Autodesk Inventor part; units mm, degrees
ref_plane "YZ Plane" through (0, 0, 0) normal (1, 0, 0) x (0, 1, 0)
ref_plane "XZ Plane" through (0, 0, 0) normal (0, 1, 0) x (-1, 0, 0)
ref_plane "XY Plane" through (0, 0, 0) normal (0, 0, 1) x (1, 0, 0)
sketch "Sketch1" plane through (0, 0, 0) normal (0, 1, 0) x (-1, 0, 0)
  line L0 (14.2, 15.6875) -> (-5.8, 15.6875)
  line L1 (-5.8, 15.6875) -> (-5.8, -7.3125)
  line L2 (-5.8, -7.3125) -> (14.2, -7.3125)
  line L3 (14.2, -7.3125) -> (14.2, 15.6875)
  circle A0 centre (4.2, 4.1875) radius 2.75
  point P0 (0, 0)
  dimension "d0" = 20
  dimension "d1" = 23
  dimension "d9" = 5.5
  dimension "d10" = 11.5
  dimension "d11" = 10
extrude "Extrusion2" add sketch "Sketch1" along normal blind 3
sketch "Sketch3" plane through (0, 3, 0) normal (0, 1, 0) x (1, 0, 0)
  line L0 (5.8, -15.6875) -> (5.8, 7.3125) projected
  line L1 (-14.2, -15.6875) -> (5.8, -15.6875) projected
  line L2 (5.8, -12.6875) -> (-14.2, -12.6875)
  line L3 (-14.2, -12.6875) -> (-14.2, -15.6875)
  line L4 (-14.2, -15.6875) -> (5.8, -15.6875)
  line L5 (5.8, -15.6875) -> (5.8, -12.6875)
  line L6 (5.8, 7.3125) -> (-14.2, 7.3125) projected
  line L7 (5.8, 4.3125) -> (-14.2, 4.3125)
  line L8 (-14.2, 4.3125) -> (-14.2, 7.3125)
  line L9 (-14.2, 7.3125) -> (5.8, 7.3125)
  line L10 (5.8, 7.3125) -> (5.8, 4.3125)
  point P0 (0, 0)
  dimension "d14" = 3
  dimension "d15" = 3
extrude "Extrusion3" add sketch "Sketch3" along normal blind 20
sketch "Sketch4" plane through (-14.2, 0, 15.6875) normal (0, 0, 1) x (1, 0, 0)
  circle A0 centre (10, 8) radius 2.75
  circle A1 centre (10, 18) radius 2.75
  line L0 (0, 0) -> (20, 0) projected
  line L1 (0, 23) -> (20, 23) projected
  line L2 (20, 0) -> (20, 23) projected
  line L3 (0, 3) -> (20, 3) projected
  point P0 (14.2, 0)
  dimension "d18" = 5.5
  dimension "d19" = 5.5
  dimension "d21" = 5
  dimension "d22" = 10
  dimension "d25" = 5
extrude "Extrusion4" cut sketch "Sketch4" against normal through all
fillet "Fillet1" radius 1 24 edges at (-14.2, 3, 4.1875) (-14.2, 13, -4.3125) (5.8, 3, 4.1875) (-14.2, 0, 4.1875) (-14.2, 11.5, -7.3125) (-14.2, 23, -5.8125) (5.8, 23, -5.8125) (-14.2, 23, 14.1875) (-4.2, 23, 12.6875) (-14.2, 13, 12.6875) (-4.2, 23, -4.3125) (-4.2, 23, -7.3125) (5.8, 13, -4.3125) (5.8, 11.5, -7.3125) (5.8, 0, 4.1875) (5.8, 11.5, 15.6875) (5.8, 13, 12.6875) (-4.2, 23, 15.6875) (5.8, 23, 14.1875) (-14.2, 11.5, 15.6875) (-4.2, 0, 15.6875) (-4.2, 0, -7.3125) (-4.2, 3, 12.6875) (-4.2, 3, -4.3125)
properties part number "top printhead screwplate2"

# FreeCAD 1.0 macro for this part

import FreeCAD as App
import Part
import Sketcher

V = App.Vector


def edges_at(feature, points):
    """Names of the edges that pass closest to the given points."""
    edges = feature.Shape.Edges
    near = lambda p: min(range(len(edges)), key=lambda i: edges[i].distToShape(Part.Vertex(*p))[0])
    return sorted({f"Edge{near(p) + 1}" for p in points})


def add_polygon(sketch, points):
    """Adds a closed chain of lines whose ends are joined by coincident constraints."""
    first, n = sketch.GeometryCount, len(points)
    for a, b in zip(points, points[1:] + points[:1]):
        sketch.addGeometry(Part.LineSegment(App.Vector(*a, 0), App.Vector(*b, 0)), False)
    for i in range(n):
        sketch.addConstraint(Sketcher.Constraint("Coincident", first + i, 2, first + (i + 1) % n, 1))

doc = App.newDocument("Part")
params = doc.addObject("Spreadsheet::Sheet", "Params")
for row, (alias, value) in enumerate([
    ("sketch1_diameter", "5.5 mm"),
    ("sketch1_width", "20 mm"),
    ("sketch1_height", "23 mm"),
    ("pad1_length", "3 mm"),
    ("sketch2_height", "3 mm"),
    ("sketch2_width", "20 mm"),
    ("pad2_length", "20 mm"),
    ("sketch3_diameter", "5.5 mm"),
    ("fillet_radius", "1 mm"),
], start=1):
    params.set(f"A{row}", alias)
    params.set(f"B{row}", "=" + value)
    params.setAlias(f"B{row}", alias)

body = doc.addObject("PartDesign::Body", "Body")

# Sketch on XZ plane
sketch1 = body.newObject("Sketcher::SketchObject", "Sketch")
sketch1.AttachmentSupport = (doc.getObject("XZ_Plane"), [""])
sketch1.MapMode = "FlatFace"
add_polygon(sketch1, [(-14.2, -7.3125), (-14.2, 15.6875), (5.8, 15.6875), (5.8, -7.3125)])  # lines 0-3
sketch1.addGeometry(Part.Circle(V(-4.2, 4.1875, 0), V(0, 0, 1), 2.75), False)  # 4
sketch1.addConstraint(Sketcher.Constraint("Vertical", 0))
sketch1.addConstraint(Sketcher.Constraint("Horizontal", 1))
sketch1.addConstraint(Sketcher.Constraint("Vertical", 2))
sketch1.addConstraint(Sketcher.Constraint("Horizontal", 3))
sketch1.addConstraint(Sketcher.Constraint("Diameter", 4, 5.5))
sketch1.addConstraint(Sketcher.Constraint("DistanceX", 1, 1, 1, 2, 20.0))
sketch1.addConstraint(Sketcher.Constraint("DistanceY", 0, 1, 0, 2, 23.0))
sketch1.addConstraint(Sketcher.Constraint("DistanceX", 0, 2, 4, 3, 10.0))
sketch1.addConstraint(Sketcher.Constraint("DistanceY", 4, 3, 0, 2, 11.5))
sketch1.addConstraint(Sketcher.Constraint("DistanceX", 4, 3, -1, 1, 4.2))
sketch1.addConstraint(Sketcher.Constraint("DistanceY", -1, 1, 4, 3, 4.1875))
sketch1.setExpression("Constraints[8]", "Params.sketch1_diameter")
sketch1.setExpression("Constraints[9]", "Params.sketch1_width")
sketch1.setExpression("Constraints[10]", "Params.sketch1_height")
pad1 = body.newObject("PartDesign::Pad", "Pad")
pad1.Profile = sketch1
pad1.setExpression("Length", "Params.pad1_length")
pad1.Reversed = True

# Sketch on XZ plane
sketch2 = body.newObject("Sketcher::SketchObject", "Sketch001")
sketch2.AttachmentSupport = (doc.getObject("XZ_Plane"), [""])
sketch2.MapMode = "FlatFace"
sketch2.AttachmentOffset = App.Placement(V(0, 0, -3), App.Rotation())
add_polygon(sketch2, [(-14.2, 15.6875), (5.8, 15.6875), (5.8, 12.6875), (-14.2, 12.6875)])  # lines 0-3
add_polygon(sketch2, [(-14.2, -4.3125), (5.8, -4.3125), (5.8, -7.3125), (-14.2, -7.3125)])  # lines 4-7
sketch2.addConstraint(Sketcher.Constraint("Horizontal", 0))
sketch2.addConstraint(Sketcher.Constraint("Vertical", 1))
sketch2.addConstraint(Sketcher.Constraint("Horizontal", 2))
sketch2.addConstraint(Sketcher.Constraint("Vertical", 3))
sketch2.addConstraint(Sketcher.Constraint("Horizontal", 4))
sketch2.addConstraint(Sketcher.Constraint("Vertical", 5))
sketch2.addConstraint(Sketcher.Constraint("Horizontal", 6))
sketch2.addConstraint(Sketcher.Constraint("Vertical", 7))
sketch2.addConstraint(Sketcher.Constraint("Vertical", 1, 2, 4, 2))
sketch2.addConstraint(Sketcher.Constraint("Vertical", 3, 2, 6, 2))
sketch2.addConstraint(Sketcher.Constraint("Equal", 3, 5))
sketch2.addConstraint(Sketcher.Constraint("DistanceY", 1, 2, 1, 1, 3.0))
sketch2.addConstraint(Sketcher.Constraint("DistanceX", 0, 1, 0, 2, 20.0))
sketch2.addConstraint(Sketcher.Constraint("DistanceY", 4, 2, 1, 2, 17.0))
sketch2.addConstraint(Sketcher.Constraint("DistanceX", -1, 1, 0, 2, 5.8))
sketch2.addConstraint(Sketcher.Constraint("DistanceY", -1, 1, 0, 2, 15.6875))
sketch2.setExpression("Constraints[19]", "Params.sketch2_height")
sketch2.setExpression("Constraints[20]", "Params.sketch2_width")
pad2 = body.newObject("PartDesign::Pad", "Pad001")
pad2.Profile = sketch2
pad2.setExpression("Length", "Params.pad2_length")
pad2.Reversed = True

# Sketch on XY plane
sketch3 = body.newObject("Sketcher::SketchObject", "Sketch002")
sketch3.AttachmentSupport = (doc.getObject("XY_Plane"), [""])
sketch3.MapMode = "FlatFace"
sketch3.AttachmentOffset = App.Placement(V(0, 0, 15.6875), App.Rotation())
sketch3.addGeometry(Part.Circle(V(-4.2, 8, 0), V(0, 0, 1), 2.75), False)
sketch3.addGeometry(Part.Circle(V(-4.2, 18, 0), V(0, 0, 1), 2.75), False)
sketch3.addConstraint(Sketcher.Constraint("Equal", 0, 1))
sketch3.addConstraint(Sketcher.Constraint("Vertical", 0, 3, 1, 3))
sketch3.addConstraint(Sketcher.Constraint("Diameter", 0, 5.5))
sketch3.addConstraint(Sketcher.Constraint("DistanceY", 0, 3, 1, 3, 10.0))
sketch3.addConstraint(Sketcher.Constraint("DistanceY", -1, 1, 0, 3, 8.0))
sketch3.addConstraint(Sketcher.Constraint("DistanceX", 0, 3, -1, 1, 4.2))
sketch3.setExpression("Constraints[2]", "Params.sketch3_diameter")
pocket1 = body.newObject("PartDesign::Pocket", "Pocket")
pocket1.Profile = sketch3
pocket1.Type = "ThroughAll"
doc.recompute()

fillet = body.newObject("PartDesign::Fillet", "Fillet")
fillet.Base = (pocket1, edges_at(pocket1, [
    (-14.2, 3, 4.188),
    (-14.2, 13, -4.312),
    (5.8, 3, 4.188),
    (-14.2, 0, 4.188),
    (-14.2, 11.5, -7.312),
    (-14.2, 23, -5.812),
    (5.8, 23, -5.812),
    (-14.2, 23, 14.188),
    (-4.2, 23, 12.688),
    (-14.2, 13, 12.688),
    (-4.2, 23, -4.312),
    (-4.2, 23, -7.312),
    (5.8, 13, -4.312),
    (5.8, 11.5, -7.312),
    (5.8, 0, 4.188),
    (5.8, 11.5, 15.688),
    (5.8, 13, 12.688),
    (-4.2, 23, 15.688),
    (5.8, 23, 14.188),
    (-14.2, 11.5, 15.688),
    (-4.2, 0, 15.688),
    (-4.2, 0, -7.312),
    (-4.2, 3, 12.688),
    (-4.2, 3, -4.312),
]))
fillet.setExpression("Radius", "Params.fillet_radius")

doc.recompute()
